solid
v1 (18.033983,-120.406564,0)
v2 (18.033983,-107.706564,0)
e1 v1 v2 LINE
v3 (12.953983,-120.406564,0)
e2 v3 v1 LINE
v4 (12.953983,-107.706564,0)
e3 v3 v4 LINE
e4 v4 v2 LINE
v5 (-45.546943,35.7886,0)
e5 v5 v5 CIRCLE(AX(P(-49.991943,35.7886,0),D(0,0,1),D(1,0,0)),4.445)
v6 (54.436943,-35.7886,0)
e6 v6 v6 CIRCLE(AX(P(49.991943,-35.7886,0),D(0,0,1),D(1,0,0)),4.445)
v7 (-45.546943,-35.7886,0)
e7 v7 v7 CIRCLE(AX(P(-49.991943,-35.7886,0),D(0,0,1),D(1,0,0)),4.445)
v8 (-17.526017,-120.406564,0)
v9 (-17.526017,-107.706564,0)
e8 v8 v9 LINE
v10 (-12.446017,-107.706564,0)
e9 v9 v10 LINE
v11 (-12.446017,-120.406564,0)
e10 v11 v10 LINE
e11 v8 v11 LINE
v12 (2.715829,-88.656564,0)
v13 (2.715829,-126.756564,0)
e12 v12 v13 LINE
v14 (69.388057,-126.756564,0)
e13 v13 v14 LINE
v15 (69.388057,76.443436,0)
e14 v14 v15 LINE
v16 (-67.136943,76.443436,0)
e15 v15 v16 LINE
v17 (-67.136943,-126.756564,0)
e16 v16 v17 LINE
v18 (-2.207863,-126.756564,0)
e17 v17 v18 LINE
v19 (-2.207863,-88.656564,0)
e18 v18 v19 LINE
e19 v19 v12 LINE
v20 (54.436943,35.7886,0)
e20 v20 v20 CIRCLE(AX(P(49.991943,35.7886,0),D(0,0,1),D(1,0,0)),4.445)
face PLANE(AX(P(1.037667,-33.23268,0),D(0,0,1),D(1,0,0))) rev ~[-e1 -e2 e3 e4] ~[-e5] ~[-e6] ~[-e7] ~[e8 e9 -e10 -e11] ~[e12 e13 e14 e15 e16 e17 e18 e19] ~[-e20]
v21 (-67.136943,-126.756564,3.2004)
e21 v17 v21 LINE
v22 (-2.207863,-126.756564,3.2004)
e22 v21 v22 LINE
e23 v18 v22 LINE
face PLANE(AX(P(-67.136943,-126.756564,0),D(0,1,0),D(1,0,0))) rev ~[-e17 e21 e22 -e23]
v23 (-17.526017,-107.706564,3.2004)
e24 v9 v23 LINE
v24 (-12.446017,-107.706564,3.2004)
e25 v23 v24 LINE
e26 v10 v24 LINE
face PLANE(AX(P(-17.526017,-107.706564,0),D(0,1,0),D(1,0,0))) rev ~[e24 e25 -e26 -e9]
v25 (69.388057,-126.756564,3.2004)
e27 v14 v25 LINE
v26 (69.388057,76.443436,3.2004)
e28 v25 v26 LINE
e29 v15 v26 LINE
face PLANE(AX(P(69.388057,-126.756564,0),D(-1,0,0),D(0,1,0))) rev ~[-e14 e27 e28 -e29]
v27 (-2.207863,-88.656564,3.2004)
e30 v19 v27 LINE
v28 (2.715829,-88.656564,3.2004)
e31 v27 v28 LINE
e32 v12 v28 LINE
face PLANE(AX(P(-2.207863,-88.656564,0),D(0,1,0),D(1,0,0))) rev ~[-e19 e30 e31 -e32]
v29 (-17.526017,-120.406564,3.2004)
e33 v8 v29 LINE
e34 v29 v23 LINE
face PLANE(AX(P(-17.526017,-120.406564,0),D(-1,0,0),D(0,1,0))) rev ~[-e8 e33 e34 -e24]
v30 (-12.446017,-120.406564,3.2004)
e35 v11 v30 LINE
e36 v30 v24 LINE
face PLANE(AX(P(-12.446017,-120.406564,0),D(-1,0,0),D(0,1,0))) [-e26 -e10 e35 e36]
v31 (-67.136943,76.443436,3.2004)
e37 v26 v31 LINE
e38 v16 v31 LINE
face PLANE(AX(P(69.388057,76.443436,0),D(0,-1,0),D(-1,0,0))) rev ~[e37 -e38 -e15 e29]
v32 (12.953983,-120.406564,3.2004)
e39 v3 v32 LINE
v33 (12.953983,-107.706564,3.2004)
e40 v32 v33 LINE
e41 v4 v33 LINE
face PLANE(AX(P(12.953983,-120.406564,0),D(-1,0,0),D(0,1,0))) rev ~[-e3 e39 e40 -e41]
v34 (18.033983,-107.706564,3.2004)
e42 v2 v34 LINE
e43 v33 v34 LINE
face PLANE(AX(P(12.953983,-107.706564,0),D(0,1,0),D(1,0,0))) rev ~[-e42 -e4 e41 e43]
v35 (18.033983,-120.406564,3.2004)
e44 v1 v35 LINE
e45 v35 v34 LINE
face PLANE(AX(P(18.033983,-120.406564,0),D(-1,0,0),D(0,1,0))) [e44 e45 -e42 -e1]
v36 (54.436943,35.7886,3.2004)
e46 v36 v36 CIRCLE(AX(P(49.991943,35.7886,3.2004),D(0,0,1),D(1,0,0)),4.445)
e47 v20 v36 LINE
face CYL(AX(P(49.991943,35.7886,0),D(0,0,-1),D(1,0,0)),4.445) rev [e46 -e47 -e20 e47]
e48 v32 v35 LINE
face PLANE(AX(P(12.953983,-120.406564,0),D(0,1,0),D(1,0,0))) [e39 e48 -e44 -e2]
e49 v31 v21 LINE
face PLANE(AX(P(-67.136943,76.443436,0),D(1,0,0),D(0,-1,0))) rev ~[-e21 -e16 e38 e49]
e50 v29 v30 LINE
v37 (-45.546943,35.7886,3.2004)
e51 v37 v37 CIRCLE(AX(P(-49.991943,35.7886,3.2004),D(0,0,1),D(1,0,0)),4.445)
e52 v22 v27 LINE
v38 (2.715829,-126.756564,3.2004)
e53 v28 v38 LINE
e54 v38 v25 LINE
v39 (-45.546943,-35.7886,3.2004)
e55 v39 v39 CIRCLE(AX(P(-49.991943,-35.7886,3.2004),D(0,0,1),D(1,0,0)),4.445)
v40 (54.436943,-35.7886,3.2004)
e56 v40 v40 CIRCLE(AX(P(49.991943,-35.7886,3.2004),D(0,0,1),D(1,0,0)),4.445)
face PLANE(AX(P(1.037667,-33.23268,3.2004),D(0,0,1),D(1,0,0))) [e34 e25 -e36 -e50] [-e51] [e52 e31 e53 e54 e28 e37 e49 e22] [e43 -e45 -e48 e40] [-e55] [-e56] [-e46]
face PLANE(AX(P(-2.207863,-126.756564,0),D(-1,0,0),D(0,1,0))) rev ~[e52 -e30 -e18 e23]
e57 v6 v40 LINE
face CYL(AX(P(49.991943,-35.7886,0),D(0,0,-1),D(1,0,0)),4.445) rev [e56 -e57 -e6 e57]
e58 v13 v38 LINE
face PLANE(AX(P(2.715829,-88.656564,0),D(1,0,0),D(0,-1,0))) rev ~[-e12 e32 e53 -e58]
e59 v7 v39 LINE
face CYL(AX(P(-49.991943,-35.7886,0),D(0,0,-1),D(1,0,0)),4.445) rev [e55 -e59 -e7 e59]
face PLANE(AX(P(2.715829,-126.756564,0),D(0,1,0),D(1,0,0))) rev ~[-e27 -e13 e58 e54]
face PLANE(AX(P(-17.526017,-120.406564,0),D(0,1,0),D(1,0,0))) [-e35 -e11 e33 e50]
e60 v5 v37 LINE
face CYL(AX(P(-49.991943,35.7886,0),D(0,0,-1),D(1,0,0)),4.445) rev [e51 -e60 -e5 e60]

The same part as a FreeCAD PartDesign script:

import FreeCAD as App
import Part
import Sketcher
from FreeCAD import Vector
Q = App.Units.Quantity


def add_polygon(sketch, points):
    """Adds a closed chain of lines whose ends are joined by coincident constraints."""
    first, n = sketch.GeometryCount, len(points)
    for a, b in zip(points, points[1:] + points[:1]):
        sketch.addGeometry(Part.LineSegment(App.Vector(*a, 0), App.Vector(*b, 0)), False)
    for i in range(n):
        sketch.addConstraint(Sketcher.Constraint("Coincident", first + i, 2, first + (i + 1) % n, 1))

doc = App.newDocument("Part")
body = doc.addObject("PartDesign::Body", "Body")

# Sketch on XY plane
sketch1 = body.newObject("Sketcher::SketchObject", "Sketch")
sketch1.AttachmentSupport = (doc.getObject("XY_Plane"), [""])
sketch1.MapMode = "FlatFace"
add_polygon(sketch1, [(69.388057, 76.443436), (-67.136943, 76.443436), (-67.136943, -126.756564), (-2.207863, -126.756564), (-2.207863, -88.656564), (2.715829, -88.656564), (2.715829, -126.756564), (69.388057, -126.756564)])  # lines 0-7
add_polygon(sketch1, [(-12.446017, -120.406564), (-17.526017, -120.406564), (-17.526017, -107.706564), (-12.446017, -107.706564)])  # lines 8-11
add_polygon(sketch1, [(18.033983, -120.406564), (12.953983, -120.406564), (12.953983, -107.706564), (18.033983, -107.706564)])  # lines 12-15
sketch1.addGeometry(Part.Circle(Vector(-49.991943, -35.7886, 0), Vector(0, 0, 1), 4.445), False)  # 16
sketch1.addGeometry(Part.Circle(Vector(-49.991943, 35.7886, 0), Vector(0, 0, 1), 4.445), False)  # 17
sketch1.addGeometry(Part.Circle(Vector(49.991943, -35.7886, 0), Vector(0, 0, 1), 4.445), False)  # 18
sketch1.addGeometry(Part.Circle(Vector(49.991943, 35.7886, 0), Vector(0, 0, 1), 4.445), False)  # 19
sketch1.addConstraint([
    Sketcher.Constraint("Horizontal", 0),
    Sketcher.Constraint("Vertical", 1),
    Sketcher.Constraint("Horizontal", 2),
    Sketcher.Constraint("Vertical", 3),
    Sketcher.Constraint("Horizontal", 4),
    Sketcher.Constraint("Vertical", 5),
    Sketcher.Constraint("Horizontal", 6),
    Sketcher.Constraint("Vertical", 7),
    Sketcher.Constraint("Horizontal", 8),
    Sketcher.Constraint("Vertical", 9),
    Sketcher.Constraint("Horizontal", 10),
    Sketcher.Constraint("Vertical", 11),
    Sketcher.Constraint("Horizontal", 12),
    Sketcher.Constraint("Vertical", 13),
    Sketcher.Constraint("Horizontal", 14),
    Sketcher.Constraint("Vertical", 15),
    Sketcher.Constraint("Equal", 16, 17),
    Sketcher.Constraint("Equal", 17, 18),
    Sketcher.Constraint("Equal", 18, 19),
    Sketcher.Constraint("Symmetric", 17, 3, 18, 3, -1, 1),
    Sketcher.Constraint("Symmetric", 16, 3, 19, 3, -1, 1),
    Sketcher.Constraint("Symmetric", 16, 3, 18, 3, -2),
    Sketcher.Constraint("Horizontal", 2, 2, 5, 2),
    Sketcher.Constraint("Horizontal", 11, 2, 12, 2),
    Sketcher.Constraint("Horizontal", 10, 2, 13, 2),
    Sketcher.Constraint("Equal", 10, 12),
    Sketcher.Constraint("Diameter", 16, Q("0.35 in")),
    Sketcher.Constraint("DistanceY", 1, 2, 1, 1, Q("8 in")),
    Sketcher.Constraint("DistanceX", 8, 2, 8, 1, Q("0.2 in")),
    Sketcher.Constraint("DistanceY", 3, 1, 3, 2, Q("1.5 in")),
    Sketcher.Constraint("DistanceY", 9, 1, 9, 2, Q("0.5 in")),
    Sketcher.Constraint("DistanceX", 11, 2, 12, 2, Q("1 in")),
    Sketcher.Constraint("DistanceX", 17, 3, 7, 2, Q("4.7 in")),
    Sketcher.Constraint("DistanceX", 0, 2, 0, 1, Q("5.375 in")),
    Sketcher.Constraint("DistanceY", 2, 2, 8, 2, Q("0.25 in")),
    Sketcher.Constraint("DistanceY", 16, 3, -1, 1, Q("1.409 in")),
    Sketcher.Constraint("DistanceX", 2, 1, 2, 2, Q("64.92908 mm")),
    Sketcher.Constraint("DistanceX", 6, 1, 6, 2, Q("66.672228 mm")),
    Sketcher.Constraint("DistanceX", -1, 1, 4, 2, Q("2.715829 mm")),
    Sketcher.Constraint("DistanceY", -1, 1, 0, 2, Q("76.443436 mm")),
    Sketcher.Constraint("DistanceX", 8, 2, -1, 1, Q("17.526017 mm")),
])
pad1 = body.newObject("PartDesign::Pad", "Pad")
pad1.Profile = sketch1
pad1.Length = Q("0.126 in")

doc.recompute()
